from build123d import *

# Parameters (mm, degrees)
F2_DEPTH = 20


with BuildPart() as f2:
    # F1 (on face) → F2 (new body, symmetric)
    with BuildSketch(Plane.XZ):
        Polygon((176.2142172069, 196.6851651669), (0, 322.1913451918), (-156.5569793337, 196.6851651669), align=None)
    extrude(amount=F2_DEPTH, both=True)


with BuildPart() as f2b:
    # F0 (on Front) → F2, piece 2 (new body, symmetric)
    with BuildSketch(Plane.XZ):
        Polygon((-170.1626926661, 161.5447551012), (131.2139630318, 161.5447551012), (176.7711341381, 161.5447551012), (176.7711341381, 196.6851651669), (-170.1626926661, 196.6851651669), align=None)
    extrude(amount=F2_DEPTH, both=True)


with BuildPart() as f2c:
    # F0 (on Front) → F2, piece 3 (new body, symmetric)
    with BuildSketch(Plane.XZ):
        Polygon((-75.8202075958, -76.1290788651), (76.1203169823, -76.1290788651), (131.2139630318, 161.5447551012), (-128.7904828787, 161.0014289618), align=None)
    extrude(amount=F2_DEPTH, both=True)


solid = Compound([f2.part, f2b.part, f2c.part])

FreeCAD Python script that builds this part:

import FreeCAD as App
import Part
import Sketcher
Q = App.Units.Quantity


def add_polygon(sketch, points):
    """Adds a closed chain of lines whose ends are joined by coincident constraints."""
    first, n = sketch.GeometryCount, len(points)
    for a, b in zip(points, points[1:] + points[:1]):
        sketch.addGeometry(Part.LineSegment(App.Vector(*a, 0), App.Vector(*b, 0)), False)
    for i in range(n):
        sketch.addConstraint(Sketcher.Constraint("Coincident", first + i, 2, first + (i + 1) % n, 1))

doc = App.newDocument("Part")
params = doc.addObject("Spreadsheet::Sheet", "Params")
for row, (alias, value) in enumerate([
    ("pad1_length", "40 mm"),
    ("pad2_length", "40 mm"),
    ("pad3_length", "40 mm"),
], start=1):
    params.set(f"A{row}", alias)
    params.set(f"B{row}", "=" + value)
    params.setAlias(f"B{row}", alias)

body = doc.addObject("PartDesign::Body", "Body")

sketch1 = body.newObject("Sketcher::SketchObject", "Sketch")
sketch1.AttachmentSupport = (doc.getObject("XZ_Plane"), [""])
sketch1.MapMode = "FlatFace"
add_polygon(sketch1, [(176.214217, 196.685165), (0, 322.191345), (-156.556979, 196.685165)])
sketch1.addConstraint([
    Sketcher.Constraint("Horizontal", 2),
    Sketcher.Constraint("PointOnObject", 0, 2, -2),
    Sketcher.Constraint("Distance", 0, Q("216.340592 mm")),
    Sketcher.Constraint("DistanceX", 2, 1, 2, 2, Q("332.771197 mm")),
    Sketcher.Constraint("DistanceX", 1, 2, -1, 1, Q("156.556979 mm")),
    Sketcher.Constraint("DistanceY", -1, 1, 0, 2, Q("322.191345 mm")),
])
pad1 = body.newObject("PartDesign::Pad", "Pad")
pad1.Profile = sketch1
pad1.setExpression("Length", "Params.pad1_length")
pad1.Midplane = True
body2 = doc.addObject("PartDesign::Body", "Body001")

sketch2 = body2.newObject("Sketcher::SketchObject", "Sketch001")
sketch2.AttachmentSupport = (doc.getObject("XZ_Plane001"), [""])
sketch2.MapMode = "FlatFace"
add_polygon(sketch2, [(-170.162693, 161.544755), (176.771134, 161.544755), (176.771134, 196.685165), (-170.162693, 196.685165)])
sketch2.addConstraint([
    Sketcher.Constraint("Horizontal", 0),
    Sketcher.Constraint("Vertical", 1),
    Sketcher.Constraint("Horizontal", 2),
    Sketcher.Constraint("Vertical", 3),
    Sketcher.Constraint("DistanceY", 1, 1, 1, 2, Q("35.14041 mm")),
    Sketcher.Constraint("DistanceX", 0, 1, 0, 2, Q("346.933827 mm")),
    Sketcher.Constraint("DistanceX", -1, 1, 0, 2, Q("176.771134 mm")),
    Sketcher.Constraint("DistanceY", -1, 1, 0, 2, Q("161.544755 mm")),
])
pad2 = body2.newObject("PartDesign::Pad", "Pad001")
pad2.Profile = sketch2
pad2.setExpression("Length", "Params.pad2_length")
pad2.Midplane = True
body3 = doc.addObject("PartDesign::Body", "Body002")

sketch3 = body3.newObject("Sketcher::SketchObject", "Sketch002")
sketch3.AttachmentSupport = (doc.getObject("XZ_Plane002"), [""])
sketch3.MapMode = "FlatFace"
add_polygon(sketch3, [(-75.820208, -76.129079), (76.120317, -76.129079), (131.213963, 161.544755), (-128.790483, 161.001429)])
sketch3.addConstraint([
    Sketcher.Constraint("Horizontal", 0),
    Sketcher.Constraint("DistanceX", 2, 2, 0, 2, Q("204.9108 mm")),
    Sketcher.Constraint("Distance", 1, Q("243.975739 mm")),
    Sketcher.Constraint("DistanceX", 0, 1, 0, 2, Q("151.940525 mm")),
    Sketcher.Constraint("DistanceY", 0, 2, -1, 1, Q("76.129079 mm")),
    Sketcher.Constraint("DistanceY", -1, 1, 2, 2, Q("161.001429 mm")),
    Sketcher.Constraint("DistanceX", 3, 2, 1, 2, Q("207.034171 mm")),
    Sketcher.Constraint("DistanceX", -1, 1, 0, 2, Q("76.120317 mm")),
])
pad3 = body3.newObject("PartDesign::Pad", "Pad002")
pad3.Profile = sketch3
pad3.setExpression("Length", "Params.pad3_length")
pad3.Midplane = True

doc.recompute()
